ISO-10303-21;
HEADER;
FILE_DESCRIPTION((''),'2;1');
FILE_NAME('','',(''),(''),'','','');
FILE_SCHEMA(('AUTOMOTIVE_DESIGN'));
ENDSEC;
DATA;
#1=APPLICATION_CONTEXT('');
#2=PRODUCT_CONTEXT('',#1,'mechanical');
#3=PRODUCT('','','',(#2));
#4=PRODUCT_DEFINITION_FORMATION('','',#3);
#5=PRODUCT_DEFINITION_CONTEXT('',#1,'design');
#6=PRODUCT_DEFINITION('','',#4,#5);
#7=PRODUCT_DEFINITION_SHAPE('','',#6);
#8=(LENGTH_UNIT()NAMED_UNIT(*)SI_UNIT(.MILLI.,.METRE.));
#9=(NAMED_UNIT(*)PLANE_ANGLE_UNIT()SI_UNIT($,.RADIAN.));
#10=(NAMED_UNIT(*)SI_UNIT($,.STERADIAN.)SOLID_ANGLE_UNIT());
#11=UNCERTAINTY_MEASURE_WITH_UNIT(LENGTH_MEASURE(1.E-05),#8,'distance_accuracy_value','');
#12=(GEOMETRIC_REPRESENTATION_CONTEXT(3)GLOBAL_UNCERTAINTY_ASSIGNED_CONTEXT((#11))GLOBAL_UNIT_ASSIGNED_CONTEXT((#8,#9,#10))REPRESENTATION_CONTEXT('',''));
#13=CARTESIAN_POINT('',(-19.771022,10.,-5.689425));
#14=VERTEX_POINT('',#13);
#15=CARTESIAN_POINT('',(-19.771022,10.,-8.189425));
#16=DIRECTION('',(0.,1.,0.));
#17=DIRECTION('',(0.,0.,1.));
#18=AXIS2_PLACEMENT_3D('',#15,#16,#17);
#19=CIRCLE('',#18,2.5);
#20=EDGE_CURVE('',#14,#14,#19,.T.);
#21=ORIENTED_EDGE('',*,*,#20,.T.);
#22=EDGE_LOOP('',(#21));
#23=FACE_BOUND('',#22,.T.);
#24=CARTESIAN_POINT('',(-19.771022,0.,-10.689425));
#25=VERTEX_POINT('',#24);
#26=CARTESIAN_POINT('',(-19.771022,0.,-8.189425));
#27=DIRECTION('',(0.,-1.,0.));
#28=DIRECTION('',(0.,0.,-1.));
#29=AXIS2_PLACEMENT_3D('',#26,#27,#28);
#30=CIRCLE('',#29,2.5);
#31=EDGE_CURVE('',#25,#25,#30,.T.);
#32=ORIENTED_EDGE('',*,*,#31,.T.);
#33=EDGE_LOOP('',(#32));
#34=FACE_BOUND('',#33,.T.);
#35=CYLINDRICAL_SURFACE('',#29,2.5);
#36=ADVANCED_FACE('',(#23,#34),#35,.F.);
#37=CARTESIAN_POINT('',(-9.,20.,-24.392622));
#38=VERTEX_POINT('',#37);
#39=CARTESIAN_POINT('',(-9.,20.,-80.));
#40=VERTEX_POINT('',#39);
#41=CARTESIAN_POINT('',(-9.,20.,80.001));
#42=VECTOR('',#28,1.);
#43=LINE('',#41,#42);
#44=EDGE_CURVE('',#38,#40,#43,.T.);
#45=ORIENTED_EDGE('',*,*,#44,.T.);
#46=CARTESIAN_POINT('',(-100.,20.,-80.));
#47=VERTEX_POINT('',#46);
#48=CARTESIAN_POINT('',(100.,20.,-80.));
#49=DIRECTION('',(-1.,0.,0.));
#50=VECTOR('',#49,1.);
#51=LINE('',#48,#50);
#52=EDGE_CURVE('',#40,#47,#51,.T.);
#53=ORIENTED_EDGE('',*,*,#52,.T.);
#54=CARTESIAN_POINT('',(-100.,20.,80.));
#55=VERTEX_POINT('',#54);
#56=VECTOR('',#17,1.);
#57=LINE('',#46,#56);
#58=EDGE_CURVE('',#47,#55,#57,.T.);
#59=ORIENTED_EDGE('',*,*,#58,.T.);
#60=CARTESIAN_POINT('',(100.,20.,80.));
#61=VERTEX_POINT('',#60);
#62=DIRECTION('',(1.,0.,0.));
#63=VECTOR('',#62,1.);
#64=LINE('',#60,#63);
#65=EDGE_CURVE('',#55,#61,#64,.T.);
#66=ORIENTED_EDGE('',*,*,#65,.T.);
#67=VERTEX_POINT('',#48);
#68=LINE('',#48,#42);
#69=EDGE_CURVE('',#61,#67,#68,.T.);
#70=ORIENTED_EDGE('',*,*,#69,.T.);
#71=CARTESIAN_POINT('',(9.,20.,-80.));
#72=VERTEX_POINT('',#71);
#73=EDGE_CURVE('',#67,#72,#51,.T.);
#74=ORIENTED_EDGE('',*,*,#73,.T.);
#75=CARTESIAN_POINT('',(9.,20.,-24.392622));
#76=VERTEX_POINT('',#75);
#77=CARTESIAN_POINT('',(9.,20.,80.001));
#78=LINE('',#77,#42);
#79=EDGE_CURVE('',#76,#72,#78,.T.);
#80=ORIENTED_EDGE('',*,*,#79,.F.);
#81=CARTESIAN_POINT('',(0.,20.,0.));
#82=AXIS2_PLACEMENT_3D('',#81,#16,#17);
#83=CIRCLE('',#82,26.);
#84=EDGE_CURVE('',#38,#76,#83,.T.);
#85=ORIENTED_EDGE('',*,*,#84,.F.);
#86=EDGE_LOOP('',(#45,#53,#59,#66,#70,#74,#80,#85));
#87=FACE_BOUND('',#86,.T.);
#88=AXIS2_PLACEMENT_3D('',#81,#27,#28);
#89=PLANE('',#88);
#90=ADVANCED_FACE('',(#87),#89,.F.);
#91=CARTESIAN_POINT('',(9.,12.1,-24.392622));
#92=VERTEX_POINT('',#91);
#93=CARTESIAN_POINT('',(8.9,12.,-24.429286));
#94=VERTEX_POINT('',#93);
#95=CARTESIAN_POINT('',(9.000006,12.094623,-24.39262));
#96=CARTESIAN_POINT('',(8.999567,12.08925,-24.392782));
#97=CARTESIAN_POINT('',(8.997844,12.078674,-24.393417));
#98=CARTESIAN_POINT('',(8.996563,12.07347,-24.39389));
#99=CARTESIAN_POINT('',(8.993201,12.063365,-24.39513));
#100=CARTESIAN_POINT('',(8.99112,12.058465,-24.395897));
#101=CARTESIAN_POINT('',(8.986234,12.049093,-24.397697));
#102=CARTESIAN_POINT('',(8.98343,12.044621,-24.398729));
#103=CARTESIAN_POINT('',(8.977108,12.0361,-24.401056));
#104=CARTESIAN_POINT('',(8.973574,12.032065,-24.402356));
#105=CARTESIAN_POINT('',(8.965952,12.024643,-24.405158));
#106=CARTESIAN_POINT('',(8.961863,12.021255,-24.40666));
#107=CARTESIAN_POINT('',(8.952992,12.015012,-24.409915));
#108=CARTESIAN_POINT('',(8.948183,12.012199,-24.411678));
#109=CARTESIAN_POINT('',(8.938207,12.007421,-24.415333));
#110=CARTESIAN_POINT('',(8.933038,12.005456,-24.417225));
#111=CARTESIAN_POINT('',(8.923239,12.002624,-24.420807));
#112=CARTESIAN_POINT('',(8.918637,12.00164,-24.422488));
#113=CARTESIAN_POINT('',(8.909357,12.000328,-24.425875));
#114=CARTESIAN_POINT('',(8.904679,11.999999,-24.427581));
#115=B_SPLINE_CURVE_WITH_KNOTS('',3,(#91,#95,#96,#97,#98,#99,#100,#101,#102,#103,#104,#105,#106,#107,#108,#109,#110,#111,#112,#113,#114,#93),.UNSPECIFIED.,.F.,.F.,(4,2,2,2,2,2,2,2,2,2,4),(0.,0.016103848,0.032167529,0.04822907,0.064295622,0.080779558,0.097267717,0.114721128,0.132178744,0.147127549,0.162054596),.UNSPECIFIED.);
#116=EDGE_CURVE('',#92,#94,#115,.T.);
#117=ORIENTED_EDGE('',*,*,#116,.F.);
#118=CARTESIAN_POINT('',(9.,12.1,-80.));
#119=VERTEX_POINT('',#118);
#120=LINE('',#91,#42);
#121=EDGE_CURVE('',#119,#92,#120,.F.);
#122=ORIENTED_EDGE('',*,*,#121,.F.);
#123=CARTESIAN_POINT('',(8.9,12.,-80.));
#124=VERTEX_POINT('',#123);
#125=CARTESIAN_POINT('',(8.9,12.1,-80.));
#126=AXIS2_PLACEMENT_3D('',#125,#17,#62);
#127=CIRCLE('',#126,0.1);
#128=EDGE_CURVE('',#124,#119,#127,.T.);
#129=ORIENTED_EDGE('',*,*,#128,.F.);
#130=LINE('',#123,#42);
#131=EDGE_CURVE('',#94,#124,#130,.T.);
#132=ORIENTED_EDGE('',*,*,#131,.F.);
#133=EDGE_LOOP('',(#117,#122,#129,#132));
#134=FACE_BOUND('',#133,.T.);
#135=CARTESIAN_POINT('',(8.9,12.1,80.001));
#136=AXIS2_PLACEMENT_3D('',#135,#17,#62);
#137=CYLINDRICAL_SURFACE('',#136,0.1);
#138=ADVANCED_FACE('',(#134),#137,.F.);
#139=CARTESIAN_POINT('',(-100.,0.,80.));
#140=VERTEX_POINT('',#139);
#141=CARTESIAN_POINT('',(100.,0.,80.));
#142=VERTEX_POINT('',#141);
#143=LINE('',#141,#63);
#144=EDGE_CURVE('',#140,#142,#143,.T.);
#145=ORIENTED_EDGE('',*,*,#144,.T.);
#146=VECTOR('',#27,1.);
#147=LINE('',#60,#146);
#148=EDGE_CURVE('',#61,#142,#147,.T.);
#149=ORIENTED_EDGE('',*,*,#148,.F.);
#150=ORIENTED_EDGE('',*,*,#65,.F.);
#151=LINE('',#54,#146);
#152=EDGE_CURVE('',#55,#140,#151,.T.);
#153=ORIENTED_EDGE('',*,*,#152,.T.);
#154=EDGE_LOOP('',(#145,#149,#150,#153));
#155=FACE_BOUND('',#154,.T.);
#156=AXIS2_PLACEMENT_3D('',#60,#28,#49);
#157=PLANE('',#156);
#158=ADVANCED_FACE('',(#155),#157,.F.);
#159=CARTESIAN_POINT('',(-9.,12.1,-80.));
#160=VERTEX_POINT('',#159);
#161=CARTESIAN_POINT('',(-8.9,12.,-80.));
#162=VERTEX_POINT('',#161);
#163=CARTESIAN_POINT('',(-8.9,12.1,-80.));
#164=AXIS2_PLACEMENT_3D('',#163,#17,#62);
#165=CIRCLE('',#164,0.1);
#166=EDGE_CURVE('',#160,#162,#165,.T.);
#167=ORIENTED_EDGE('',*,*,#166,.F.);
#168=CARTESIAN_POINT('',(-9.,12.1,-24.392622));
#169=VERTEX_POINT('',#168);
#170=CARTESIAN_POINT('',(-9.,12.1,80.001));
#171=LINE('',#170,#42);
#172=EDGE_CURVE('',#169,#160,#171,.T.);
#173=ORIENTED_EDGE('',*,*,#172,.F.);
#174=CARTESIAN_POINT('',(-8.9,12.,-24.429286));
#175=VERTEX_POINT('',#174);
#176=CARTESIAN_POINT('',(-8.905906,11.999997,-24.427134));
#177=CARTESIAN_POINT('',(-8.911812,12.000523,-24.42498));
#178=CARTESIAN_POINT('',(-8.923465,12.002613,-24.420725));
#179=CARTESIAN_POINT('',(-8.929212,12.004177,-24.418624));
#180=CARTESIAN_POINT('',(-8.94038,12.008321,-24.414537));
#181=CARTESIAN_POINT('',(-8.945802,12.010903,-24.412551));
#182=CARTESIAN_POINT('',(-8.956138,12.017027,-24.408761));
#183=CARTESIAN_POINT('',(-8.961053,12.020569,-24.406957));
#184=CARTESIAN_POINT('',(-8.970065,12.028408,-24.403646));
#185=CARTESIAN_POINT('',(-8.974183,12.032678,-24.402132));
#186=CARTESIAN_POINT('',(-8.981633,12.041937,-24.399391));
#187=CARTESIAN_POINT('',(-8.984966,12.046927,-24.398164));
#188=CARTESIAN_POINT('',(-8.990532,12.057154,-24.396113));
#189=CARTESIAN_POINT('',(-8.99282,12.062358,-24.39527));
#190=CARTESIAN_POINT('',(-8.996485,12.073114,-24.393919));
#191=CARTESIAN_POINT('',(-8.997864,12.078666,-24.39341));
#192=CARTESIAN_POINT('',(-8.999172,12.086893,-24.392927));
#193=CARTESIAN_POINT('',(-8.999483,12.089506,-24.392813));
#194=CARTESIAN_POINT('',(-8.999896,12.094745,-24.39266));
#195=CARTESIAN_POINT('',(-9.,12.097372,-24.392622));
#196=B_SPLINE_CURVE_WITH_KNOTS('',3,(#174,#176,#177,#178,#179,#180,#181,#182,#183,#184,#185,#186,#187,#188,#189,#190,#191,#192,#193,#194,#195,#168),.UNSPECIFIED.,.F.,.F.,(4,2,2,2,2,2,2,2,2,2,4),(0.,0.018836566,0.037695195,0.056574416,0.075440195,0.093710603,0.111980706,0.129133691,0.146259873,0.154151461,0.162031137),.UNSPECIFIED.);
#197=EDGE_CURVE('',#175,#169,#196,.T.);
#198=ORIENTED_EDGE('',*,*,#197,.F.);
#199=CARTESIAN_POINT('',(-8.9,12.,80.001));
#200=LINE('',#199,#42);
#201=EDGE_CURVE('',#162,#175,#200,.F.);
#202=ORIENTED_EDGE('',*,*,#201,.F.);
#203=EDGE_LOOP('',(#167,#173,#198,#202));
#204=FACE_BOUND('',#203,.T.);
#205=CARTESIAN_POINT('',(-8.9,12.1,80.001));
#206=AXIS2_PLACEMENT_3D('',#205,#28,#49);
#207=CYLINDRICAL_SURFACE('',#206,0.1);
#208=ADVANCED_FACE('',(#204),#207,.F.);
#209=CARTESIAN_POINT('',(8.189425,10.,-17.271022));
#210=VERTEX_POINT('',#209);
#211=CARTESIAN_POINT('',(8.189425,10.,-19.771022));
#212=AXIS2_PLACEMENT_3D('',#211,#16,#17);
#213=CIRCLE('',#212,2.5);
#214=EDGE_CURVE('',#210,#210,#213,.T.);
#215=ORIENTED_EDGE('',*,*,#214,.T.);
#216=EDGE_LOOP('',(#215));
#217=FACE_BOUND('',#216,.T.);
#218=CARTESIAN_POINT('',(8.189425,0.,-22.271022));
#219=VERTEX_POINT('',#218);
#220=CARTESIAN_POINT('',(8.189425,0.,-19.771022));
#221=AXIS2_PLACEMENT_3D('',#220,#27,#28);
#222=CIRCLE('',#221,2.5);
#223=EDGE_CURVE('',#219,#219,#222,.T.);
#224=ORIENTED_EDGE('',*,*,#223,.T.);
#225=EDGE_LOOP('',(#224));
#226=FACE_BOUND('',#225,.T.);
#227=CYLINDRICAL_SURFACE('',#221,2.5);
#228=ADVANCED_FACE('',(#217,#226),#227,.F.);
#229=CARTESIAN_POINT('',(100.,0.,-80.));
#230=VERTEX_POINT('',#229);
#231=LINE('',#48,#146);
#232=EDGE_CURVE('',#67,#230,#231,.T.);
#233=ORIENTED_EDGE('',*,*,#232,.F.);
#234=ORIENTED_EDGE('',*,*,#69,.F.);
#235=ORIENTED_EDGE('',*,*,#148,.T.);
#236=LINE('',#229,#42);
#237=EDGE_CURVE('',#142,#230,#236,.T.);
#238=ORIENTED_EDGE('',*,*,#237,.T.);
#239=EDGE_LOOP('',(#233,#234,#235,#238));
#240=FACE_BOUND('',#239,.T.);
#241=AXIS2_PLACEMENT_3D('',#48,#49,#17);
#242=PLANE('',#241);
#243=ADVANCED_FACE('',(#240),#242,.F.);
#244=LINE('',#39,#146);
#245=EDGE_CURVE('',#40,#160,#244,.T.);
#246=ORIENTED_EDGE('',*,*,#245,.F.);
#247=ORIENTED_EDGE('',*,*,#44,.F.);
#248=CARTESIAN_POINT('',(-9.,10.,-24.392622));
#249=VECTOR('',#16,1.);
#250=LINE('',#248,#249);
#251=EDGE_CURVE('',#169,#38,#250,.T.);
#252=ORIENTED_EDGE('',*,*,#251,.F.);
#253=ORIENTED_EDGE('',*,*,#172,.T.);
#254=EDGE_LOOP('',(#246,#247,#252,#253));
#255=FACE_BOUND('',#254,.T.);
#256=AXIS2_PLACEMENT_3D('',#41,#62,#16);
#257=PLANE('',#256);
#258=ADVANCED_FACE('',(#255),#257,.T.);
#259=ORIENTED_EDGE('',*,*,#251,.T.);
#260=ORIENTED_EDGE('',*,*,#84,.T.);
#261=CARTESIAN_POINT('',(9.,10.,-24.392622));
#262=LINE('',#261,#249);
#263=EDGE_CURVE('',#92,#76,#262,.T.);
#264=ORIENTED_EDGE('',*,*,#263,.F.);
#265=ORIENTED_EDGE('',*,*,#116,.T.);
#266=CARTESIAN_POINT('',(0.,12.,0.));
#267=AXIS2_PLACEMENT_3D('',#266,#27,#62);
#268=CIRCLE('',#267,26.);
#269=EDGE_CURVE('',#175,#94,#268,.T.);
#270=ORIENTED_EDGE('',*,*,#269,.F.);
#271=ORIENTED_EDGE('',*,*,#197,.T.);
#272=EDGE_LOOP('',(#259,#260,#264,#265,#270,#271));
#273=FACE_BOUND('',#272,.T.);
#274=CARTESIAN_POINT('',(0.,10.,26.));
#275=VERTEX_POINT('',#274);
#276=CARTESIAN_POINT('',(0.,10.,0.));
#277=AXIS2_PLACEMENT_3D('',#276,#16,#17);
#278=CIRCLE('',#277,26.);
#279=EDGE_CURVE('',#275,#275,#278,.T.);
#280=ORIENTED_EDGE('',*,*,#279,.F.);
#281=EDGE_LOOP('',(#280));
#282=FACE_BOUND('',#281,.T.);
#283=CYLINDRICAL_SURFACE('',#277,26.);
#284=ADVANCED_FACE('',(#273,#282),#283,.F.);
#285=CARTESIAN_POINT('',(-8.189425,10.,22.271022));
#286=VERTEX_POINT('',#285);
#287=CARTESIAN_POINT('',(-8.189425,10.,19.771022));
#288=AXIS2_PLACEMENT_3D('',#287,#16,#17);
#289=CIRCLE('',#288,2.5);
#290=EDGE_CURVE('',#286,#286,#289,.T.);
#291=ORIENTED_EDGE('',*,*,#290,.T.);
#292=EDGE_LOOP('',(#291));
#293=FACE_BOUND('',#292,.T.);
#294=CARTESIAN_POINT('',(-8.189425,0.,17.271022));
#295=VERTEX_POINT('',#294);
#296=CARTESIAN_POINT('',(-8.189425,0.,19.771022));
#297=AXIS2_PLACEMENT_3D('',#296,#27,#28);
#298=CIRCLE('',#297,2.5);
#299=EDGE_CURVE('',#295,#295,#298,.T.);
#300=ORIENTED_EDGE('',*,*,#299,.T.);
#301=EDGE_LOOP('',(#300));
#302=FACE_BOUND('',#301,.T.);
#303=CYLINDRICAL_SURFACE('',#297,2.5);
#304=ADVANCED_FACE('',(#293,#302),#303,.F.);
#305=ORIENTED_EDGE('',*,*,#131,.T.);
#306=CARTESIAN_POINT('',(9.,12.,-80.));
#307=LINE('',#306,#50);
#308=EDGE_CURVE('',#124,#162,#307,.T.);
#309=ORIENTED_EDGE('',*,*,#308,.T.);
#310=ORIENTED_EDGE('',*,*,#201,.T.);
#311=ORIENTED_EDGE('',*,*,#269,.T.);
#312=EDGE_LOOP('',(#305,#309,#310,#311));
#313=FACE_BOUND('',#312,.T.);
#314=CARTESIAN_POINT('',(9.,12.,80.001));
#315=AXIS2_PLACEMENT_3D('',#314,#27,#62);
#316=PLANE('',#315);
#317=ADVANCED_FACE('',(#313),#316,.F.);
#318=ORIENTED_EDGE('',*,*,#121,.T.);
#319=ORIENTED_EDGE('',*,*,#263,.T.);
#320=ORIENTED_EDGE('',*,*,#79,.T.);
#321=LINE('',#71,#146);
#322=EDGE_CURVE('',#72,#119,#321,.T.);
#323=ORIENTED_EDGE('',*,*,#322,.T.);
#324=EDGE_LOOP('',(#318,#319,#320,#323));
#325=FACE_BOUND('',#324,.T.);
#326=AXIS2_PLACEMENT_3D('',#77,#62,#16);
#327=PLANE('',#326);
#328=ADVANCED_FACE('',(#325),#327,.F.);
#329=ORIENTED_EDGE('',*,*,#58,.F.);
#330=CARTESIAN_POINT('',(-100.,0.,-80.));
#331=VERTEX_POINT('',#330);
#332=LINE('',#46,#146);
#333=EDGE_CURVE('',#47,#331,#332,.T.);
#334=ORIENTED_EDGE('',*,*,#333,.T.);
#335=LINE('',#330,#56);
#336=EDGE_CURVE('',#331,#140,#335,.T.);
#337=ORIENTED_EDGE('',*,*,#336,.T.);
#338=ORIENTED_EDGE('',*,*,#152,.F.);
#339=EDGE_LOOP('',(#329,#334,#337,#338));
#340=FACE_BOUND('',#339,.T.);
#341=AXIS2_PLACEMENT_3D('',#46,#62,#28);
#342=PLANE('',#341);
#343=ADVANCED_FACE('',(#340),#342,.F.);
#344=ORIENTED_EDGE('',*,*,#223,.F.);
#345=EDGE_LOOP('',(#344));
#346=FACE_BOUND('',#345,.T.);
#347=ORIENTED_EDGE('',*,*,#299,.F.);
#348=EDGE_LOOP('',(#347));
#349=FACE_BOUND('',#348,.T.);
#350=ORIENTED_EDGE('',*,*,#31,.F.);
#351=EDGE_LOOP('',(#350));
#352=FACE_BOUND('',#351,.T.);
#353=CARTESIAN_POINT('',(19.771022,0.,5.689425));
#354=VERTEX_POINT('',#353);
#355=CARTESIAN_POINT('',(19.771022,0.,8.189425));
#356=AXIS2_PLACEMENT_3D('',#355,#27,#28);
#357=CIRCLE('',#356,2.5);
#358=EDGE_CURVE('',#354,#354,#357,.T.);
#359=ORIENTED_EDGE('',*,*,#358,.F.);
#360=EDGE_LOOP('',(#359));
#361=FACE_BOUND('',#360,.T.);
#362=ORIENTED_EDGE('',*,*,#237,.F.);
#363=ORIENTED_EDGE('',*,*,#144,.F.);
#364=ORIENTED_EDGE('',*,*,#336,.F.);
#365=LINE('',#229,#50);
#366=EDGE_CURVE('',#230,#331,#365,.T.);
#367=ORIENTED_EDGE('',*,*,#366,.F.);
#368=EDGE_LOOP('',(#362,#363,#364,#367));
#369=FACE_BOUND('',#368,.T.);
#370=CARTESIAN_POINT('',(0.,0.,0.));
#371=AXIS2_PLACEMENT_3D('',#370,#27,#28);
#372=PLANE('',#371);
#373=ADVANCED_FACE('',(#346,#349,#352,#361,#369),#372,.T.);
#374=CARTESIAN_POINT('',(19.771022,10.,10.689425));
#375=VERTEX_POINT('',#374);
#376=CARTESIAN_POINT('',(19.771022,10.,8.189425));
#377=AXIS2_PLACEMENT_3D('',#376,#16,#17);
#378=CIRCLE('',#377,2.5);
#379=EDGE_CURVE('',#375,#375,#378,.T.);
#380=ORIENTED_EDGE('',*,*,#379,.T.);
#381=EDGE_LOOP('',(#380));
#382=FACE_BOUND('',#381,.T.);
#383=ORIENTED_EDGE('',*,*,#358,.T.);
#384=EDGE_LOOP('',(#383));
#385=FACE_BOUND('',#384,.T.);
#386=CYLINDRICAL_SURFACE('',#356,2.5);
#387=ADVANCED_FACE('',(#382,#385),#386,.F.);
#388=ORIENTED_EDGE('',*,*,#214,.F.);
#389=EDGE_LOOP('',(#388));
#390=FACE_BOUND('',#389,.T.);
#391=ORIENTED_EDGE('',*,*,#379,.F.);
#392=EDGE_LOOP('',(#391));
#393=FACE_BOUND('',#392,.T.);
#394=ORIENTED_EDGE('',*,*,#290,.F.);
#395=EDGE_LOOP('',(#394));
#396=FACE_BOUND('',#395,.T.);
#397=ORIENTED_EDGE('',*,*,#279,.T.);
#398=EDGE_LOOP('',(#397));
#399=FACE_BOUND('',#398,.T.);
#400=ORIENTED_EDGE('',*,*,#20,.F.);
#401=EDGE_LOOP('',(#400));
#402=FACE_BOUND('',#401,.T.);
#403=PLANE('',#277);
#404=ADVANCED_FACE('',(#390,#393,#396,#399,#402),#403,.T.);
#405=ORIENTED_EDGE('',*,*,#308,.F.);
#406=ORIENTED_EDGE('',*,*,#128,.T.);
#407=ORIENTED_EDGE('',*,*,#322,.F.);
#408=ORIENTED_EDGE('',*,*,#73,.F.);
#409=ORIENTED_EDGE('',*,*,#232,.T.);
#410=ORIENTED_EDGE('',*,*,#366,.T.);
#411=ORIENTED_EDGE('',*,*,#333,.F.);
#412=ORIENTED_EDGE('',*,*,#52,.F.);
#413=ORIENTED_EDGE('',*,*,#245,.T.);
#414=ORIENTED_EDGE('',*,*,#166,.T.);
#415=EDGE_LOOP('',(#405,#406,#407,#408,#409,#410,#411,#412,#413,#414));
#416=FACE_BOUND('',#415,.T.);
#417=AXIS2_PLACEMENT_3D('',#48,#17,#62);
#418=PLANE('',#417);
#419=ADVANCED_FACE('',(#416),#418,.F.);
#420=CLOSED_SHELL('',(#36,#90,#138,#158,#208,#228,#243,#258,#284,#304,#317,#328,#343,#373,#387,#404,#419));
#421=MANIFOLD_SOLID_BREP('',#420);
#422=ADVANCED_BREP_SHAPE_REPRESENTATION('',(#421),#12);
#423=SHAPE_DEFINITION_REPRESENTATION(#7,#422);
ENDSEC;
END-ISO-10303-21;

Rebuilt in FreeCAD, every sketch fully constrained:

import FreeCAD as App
import Part
import Sketcher

V = App.Vector
Q = App.Units.Quantity


def edges_at(feature, points):
    """Names of the edges that pass closest to the given points."""
    edges = feature.Shape.Edges
    near = lambda p: min(range(len(edges)), key=lambda i: edges[i].distToShape(Part.Vertex(*p))[0])
    return sorted({f"Edge{near(p) + 1}" for p in points})

doc = App.newDocument("Part")
body = doc.addObject("PartDesign::Body", "Body")

# Sketch on XZ plane
sketch1 = body.newObject("Sketcher::SketchObject", "Sketch")
sketch1.AttachmentSupport = (doc.getObject("XZ_Plane"), [""])
sketch1.MapMode = "FlatFace"
sketch1.addGeometry([
    Part.LineSegment(V(-100, -80, 0), V(-100, 80, 0)),
    Part.LineSegment(V(-100, 80, 0), V(100, 80, 0)),
    Part.LineSegment(V(100, 80, 0), V(100, -80, 0)),
    Part.LineSegment(V(100, -80, 0), V(-100, -80, 0)),
], False)
sketch1.addConstraint([
    Sketcher.Constraint("Coincident", 0, 2, 1, 1),
    Sketcher.Constraint("Coincident", 1, 2, 2, 1),
    Sketcher.Constraint("Coincident", 2, 2, 3, 1),
    Sketcher.Constraint("Coincident", 3, 2, 0, 1),
    Sketcher.Constraint("Vertical", 0),
    Sketcher.Constraint("Horizontal", 1),
    Sketcher.Constraint("Vertical", 2),
    Sketcher.Constraint("Horizontal", 3),
    Sketcher.Constraint("Symmetric", 0, 2, 2, 2, -1, 1),
    Sketcher.Constraint("DistanceX", 1, 1, 1, 2, Q("200 mm")),
    Sketcher.Constraint("DistanceY", 0, 1, 0, 2, Q("160 mm")),
])
pad1 = body.newObject("PartDesign::Pad", "Pad")
pad1.Profile = sketch1
pad1.Length = 20
pad1.Reversed = True

# Sketch on XZ plane
sketch2 = body.newObject("Sketcher::SketchObject", "Sketch001")
sketch2.AttachmentSupport = (doc.getObject("XZ_Plane"), [""])
sketch2.MapMode = "FlatFace"
sketch2.AttachmentOffset = App.Placement(V(0, 0, -20), App.Rotation())
sketch2.addGeometry(Part.Circle(V(0, 0, 0), V(0, 0, 1), 26), False)
sketch2.addConstraint([
    Sketcher.Constraint("Coincident", 0, 3, -1, 1),
    Sketcher.Constraint("Diameter", 0, Q("52 mm")),
])
pocket1 = body.newObject("PartDesign::Pocket", "Pocket")
pocket1.Profile = sketch2
pocket1.Length = 10
pocket1.Reversed = True

# Sketch on XY plane
sketch3 = body.newObject("Sketcher::SketchObject", "Sketch002")
sketch3.AttachmentSupport = (doc.getObject("XY_Plane"), [""])
sketch3.MapMode = "FlatFace"
sketch3.AttachmentOffset = App.Placement(V(0, 0, -80), App.Rotation())
sketch3.addGeometry([
    Part.LineSegment(V(-9, 20, 0), V(-9, 12, 0)),
    Part.LineSegment(V(-9, 12, 0), V(9, 12, 0)),
    Part.LineSegment(V(9, 12, 0), V(9, 20, 0)),
    Part.LineSegment(V(9, 20, 0), V(-9, 20, 0)),
], False)
sketch3.addConstraint([
    Sketcher.Constraint("Coincident", 0, 2, 1, 1),
    Sketcher.Constraint("Coincident", 1, 2, 2, 1),
    Sketcher.Constraint("Coincident", 2, 2, 3, 1),
    Sketcher.Constraint("Coincident", 3, 2, 0, 1),
    Sketcher.Constraint("Vertical", 0),
    Sketcher.Constraint("Horizontal", 1),
    Sketcher.Constraint("Vertical", 2),
    Sketcher.Constraint("Horizontal", 3),
    Sketcher.Constraint("DistanceX", 1, 1, 1, 2, Q("18 mm")),
    Sketcher.Constraint("DistanceY", 0, 2, 0, 1, Q("8 mm")),
    Sketcher.Constraint("DistanceX", 0, 2, -1, 1, Q("9 mm")),
    Sketcher.Constraint("DistanceY", -1, 1, 0, 2, Q("12 mm")),
])
pocket2 = body.newObject("PartDesign::Pocket", "Pocket001")
pocket2.Profile = sketch3
pocket2.Length = 55.607378
pocket2.Reversed = True
doc.recompute()

fillet = body.newObject("PartDesign::Fillet", "Fillet")
fillet.Base = (pocket2, edges_at(pocket2, [(9, 12, -52.196), (-9, 12, -52.196)]))
fillet.Radius = 0.1

# Sketch on XZ plane
sketch4 = body.newObject("Sketcher::SketchObject", "Sketch003")
sketch4.AttachmentSupport = (doc.getObject("XZ_Plane"), [""])
sketch4.MapMode = "FlatFace"
sketch4.addGeometry([
    Part.Circle(V(-8.2, 19.8, 0), V(0, 0, 1), 2.5),
    Part.Circle(V(19.8, 8.2, 0), V(0, 0, 1), 2.5),
    Part.Circle(V(8.2, -19.8, 0), V(0, 0, 1), 2.5),
    Part.Circle(V(-19.8, -8.2, 0), V(0, 0, 1), 2.5),
], False)
sketch4.addConstraint([
    Sketcher.Constraint("Equal", 0, 1),
    Sketcher.Constraint("Equal", 1, 2),
    Sketcher.Constraint("Equal", 2, 3),
    Sketcher.Constraint("Symmetric", 0, 3, 2, 3, -1, 1),
    Sketcher.Constraint("Symmetric", 1, 3, 3, 3, -1, 1),
    Sketcher.Constraint("Diameter", 0, Q("5 mm")),
    Sketcher.Constraint("DistanceY", -1, 1, 0, 3, Q("19.771022 mm")),
    Sketcher.Constraint("DistanceX", -1, 1, 1, 3, Q("19.771022 mm")),
    Sketcher.Constraint("DistanceX", 0, 3, 2, 3, Q("16.378851 mm")),
    Sketcher.Constraint("DistanceY", 3, 3, 1, 3, Q("16.378851 mm")),
])
doc.recompute()
hole = body.newObject("PartDesign::Hole", "Hole")
hole.Profile = sketch4
hole.ThreadType = "None"
hole.Diameter = 5
hole.DepthType = "Dimension"
hole.Depth = 10
hole.DrillPoint = "Flat"

doc.recompute()
